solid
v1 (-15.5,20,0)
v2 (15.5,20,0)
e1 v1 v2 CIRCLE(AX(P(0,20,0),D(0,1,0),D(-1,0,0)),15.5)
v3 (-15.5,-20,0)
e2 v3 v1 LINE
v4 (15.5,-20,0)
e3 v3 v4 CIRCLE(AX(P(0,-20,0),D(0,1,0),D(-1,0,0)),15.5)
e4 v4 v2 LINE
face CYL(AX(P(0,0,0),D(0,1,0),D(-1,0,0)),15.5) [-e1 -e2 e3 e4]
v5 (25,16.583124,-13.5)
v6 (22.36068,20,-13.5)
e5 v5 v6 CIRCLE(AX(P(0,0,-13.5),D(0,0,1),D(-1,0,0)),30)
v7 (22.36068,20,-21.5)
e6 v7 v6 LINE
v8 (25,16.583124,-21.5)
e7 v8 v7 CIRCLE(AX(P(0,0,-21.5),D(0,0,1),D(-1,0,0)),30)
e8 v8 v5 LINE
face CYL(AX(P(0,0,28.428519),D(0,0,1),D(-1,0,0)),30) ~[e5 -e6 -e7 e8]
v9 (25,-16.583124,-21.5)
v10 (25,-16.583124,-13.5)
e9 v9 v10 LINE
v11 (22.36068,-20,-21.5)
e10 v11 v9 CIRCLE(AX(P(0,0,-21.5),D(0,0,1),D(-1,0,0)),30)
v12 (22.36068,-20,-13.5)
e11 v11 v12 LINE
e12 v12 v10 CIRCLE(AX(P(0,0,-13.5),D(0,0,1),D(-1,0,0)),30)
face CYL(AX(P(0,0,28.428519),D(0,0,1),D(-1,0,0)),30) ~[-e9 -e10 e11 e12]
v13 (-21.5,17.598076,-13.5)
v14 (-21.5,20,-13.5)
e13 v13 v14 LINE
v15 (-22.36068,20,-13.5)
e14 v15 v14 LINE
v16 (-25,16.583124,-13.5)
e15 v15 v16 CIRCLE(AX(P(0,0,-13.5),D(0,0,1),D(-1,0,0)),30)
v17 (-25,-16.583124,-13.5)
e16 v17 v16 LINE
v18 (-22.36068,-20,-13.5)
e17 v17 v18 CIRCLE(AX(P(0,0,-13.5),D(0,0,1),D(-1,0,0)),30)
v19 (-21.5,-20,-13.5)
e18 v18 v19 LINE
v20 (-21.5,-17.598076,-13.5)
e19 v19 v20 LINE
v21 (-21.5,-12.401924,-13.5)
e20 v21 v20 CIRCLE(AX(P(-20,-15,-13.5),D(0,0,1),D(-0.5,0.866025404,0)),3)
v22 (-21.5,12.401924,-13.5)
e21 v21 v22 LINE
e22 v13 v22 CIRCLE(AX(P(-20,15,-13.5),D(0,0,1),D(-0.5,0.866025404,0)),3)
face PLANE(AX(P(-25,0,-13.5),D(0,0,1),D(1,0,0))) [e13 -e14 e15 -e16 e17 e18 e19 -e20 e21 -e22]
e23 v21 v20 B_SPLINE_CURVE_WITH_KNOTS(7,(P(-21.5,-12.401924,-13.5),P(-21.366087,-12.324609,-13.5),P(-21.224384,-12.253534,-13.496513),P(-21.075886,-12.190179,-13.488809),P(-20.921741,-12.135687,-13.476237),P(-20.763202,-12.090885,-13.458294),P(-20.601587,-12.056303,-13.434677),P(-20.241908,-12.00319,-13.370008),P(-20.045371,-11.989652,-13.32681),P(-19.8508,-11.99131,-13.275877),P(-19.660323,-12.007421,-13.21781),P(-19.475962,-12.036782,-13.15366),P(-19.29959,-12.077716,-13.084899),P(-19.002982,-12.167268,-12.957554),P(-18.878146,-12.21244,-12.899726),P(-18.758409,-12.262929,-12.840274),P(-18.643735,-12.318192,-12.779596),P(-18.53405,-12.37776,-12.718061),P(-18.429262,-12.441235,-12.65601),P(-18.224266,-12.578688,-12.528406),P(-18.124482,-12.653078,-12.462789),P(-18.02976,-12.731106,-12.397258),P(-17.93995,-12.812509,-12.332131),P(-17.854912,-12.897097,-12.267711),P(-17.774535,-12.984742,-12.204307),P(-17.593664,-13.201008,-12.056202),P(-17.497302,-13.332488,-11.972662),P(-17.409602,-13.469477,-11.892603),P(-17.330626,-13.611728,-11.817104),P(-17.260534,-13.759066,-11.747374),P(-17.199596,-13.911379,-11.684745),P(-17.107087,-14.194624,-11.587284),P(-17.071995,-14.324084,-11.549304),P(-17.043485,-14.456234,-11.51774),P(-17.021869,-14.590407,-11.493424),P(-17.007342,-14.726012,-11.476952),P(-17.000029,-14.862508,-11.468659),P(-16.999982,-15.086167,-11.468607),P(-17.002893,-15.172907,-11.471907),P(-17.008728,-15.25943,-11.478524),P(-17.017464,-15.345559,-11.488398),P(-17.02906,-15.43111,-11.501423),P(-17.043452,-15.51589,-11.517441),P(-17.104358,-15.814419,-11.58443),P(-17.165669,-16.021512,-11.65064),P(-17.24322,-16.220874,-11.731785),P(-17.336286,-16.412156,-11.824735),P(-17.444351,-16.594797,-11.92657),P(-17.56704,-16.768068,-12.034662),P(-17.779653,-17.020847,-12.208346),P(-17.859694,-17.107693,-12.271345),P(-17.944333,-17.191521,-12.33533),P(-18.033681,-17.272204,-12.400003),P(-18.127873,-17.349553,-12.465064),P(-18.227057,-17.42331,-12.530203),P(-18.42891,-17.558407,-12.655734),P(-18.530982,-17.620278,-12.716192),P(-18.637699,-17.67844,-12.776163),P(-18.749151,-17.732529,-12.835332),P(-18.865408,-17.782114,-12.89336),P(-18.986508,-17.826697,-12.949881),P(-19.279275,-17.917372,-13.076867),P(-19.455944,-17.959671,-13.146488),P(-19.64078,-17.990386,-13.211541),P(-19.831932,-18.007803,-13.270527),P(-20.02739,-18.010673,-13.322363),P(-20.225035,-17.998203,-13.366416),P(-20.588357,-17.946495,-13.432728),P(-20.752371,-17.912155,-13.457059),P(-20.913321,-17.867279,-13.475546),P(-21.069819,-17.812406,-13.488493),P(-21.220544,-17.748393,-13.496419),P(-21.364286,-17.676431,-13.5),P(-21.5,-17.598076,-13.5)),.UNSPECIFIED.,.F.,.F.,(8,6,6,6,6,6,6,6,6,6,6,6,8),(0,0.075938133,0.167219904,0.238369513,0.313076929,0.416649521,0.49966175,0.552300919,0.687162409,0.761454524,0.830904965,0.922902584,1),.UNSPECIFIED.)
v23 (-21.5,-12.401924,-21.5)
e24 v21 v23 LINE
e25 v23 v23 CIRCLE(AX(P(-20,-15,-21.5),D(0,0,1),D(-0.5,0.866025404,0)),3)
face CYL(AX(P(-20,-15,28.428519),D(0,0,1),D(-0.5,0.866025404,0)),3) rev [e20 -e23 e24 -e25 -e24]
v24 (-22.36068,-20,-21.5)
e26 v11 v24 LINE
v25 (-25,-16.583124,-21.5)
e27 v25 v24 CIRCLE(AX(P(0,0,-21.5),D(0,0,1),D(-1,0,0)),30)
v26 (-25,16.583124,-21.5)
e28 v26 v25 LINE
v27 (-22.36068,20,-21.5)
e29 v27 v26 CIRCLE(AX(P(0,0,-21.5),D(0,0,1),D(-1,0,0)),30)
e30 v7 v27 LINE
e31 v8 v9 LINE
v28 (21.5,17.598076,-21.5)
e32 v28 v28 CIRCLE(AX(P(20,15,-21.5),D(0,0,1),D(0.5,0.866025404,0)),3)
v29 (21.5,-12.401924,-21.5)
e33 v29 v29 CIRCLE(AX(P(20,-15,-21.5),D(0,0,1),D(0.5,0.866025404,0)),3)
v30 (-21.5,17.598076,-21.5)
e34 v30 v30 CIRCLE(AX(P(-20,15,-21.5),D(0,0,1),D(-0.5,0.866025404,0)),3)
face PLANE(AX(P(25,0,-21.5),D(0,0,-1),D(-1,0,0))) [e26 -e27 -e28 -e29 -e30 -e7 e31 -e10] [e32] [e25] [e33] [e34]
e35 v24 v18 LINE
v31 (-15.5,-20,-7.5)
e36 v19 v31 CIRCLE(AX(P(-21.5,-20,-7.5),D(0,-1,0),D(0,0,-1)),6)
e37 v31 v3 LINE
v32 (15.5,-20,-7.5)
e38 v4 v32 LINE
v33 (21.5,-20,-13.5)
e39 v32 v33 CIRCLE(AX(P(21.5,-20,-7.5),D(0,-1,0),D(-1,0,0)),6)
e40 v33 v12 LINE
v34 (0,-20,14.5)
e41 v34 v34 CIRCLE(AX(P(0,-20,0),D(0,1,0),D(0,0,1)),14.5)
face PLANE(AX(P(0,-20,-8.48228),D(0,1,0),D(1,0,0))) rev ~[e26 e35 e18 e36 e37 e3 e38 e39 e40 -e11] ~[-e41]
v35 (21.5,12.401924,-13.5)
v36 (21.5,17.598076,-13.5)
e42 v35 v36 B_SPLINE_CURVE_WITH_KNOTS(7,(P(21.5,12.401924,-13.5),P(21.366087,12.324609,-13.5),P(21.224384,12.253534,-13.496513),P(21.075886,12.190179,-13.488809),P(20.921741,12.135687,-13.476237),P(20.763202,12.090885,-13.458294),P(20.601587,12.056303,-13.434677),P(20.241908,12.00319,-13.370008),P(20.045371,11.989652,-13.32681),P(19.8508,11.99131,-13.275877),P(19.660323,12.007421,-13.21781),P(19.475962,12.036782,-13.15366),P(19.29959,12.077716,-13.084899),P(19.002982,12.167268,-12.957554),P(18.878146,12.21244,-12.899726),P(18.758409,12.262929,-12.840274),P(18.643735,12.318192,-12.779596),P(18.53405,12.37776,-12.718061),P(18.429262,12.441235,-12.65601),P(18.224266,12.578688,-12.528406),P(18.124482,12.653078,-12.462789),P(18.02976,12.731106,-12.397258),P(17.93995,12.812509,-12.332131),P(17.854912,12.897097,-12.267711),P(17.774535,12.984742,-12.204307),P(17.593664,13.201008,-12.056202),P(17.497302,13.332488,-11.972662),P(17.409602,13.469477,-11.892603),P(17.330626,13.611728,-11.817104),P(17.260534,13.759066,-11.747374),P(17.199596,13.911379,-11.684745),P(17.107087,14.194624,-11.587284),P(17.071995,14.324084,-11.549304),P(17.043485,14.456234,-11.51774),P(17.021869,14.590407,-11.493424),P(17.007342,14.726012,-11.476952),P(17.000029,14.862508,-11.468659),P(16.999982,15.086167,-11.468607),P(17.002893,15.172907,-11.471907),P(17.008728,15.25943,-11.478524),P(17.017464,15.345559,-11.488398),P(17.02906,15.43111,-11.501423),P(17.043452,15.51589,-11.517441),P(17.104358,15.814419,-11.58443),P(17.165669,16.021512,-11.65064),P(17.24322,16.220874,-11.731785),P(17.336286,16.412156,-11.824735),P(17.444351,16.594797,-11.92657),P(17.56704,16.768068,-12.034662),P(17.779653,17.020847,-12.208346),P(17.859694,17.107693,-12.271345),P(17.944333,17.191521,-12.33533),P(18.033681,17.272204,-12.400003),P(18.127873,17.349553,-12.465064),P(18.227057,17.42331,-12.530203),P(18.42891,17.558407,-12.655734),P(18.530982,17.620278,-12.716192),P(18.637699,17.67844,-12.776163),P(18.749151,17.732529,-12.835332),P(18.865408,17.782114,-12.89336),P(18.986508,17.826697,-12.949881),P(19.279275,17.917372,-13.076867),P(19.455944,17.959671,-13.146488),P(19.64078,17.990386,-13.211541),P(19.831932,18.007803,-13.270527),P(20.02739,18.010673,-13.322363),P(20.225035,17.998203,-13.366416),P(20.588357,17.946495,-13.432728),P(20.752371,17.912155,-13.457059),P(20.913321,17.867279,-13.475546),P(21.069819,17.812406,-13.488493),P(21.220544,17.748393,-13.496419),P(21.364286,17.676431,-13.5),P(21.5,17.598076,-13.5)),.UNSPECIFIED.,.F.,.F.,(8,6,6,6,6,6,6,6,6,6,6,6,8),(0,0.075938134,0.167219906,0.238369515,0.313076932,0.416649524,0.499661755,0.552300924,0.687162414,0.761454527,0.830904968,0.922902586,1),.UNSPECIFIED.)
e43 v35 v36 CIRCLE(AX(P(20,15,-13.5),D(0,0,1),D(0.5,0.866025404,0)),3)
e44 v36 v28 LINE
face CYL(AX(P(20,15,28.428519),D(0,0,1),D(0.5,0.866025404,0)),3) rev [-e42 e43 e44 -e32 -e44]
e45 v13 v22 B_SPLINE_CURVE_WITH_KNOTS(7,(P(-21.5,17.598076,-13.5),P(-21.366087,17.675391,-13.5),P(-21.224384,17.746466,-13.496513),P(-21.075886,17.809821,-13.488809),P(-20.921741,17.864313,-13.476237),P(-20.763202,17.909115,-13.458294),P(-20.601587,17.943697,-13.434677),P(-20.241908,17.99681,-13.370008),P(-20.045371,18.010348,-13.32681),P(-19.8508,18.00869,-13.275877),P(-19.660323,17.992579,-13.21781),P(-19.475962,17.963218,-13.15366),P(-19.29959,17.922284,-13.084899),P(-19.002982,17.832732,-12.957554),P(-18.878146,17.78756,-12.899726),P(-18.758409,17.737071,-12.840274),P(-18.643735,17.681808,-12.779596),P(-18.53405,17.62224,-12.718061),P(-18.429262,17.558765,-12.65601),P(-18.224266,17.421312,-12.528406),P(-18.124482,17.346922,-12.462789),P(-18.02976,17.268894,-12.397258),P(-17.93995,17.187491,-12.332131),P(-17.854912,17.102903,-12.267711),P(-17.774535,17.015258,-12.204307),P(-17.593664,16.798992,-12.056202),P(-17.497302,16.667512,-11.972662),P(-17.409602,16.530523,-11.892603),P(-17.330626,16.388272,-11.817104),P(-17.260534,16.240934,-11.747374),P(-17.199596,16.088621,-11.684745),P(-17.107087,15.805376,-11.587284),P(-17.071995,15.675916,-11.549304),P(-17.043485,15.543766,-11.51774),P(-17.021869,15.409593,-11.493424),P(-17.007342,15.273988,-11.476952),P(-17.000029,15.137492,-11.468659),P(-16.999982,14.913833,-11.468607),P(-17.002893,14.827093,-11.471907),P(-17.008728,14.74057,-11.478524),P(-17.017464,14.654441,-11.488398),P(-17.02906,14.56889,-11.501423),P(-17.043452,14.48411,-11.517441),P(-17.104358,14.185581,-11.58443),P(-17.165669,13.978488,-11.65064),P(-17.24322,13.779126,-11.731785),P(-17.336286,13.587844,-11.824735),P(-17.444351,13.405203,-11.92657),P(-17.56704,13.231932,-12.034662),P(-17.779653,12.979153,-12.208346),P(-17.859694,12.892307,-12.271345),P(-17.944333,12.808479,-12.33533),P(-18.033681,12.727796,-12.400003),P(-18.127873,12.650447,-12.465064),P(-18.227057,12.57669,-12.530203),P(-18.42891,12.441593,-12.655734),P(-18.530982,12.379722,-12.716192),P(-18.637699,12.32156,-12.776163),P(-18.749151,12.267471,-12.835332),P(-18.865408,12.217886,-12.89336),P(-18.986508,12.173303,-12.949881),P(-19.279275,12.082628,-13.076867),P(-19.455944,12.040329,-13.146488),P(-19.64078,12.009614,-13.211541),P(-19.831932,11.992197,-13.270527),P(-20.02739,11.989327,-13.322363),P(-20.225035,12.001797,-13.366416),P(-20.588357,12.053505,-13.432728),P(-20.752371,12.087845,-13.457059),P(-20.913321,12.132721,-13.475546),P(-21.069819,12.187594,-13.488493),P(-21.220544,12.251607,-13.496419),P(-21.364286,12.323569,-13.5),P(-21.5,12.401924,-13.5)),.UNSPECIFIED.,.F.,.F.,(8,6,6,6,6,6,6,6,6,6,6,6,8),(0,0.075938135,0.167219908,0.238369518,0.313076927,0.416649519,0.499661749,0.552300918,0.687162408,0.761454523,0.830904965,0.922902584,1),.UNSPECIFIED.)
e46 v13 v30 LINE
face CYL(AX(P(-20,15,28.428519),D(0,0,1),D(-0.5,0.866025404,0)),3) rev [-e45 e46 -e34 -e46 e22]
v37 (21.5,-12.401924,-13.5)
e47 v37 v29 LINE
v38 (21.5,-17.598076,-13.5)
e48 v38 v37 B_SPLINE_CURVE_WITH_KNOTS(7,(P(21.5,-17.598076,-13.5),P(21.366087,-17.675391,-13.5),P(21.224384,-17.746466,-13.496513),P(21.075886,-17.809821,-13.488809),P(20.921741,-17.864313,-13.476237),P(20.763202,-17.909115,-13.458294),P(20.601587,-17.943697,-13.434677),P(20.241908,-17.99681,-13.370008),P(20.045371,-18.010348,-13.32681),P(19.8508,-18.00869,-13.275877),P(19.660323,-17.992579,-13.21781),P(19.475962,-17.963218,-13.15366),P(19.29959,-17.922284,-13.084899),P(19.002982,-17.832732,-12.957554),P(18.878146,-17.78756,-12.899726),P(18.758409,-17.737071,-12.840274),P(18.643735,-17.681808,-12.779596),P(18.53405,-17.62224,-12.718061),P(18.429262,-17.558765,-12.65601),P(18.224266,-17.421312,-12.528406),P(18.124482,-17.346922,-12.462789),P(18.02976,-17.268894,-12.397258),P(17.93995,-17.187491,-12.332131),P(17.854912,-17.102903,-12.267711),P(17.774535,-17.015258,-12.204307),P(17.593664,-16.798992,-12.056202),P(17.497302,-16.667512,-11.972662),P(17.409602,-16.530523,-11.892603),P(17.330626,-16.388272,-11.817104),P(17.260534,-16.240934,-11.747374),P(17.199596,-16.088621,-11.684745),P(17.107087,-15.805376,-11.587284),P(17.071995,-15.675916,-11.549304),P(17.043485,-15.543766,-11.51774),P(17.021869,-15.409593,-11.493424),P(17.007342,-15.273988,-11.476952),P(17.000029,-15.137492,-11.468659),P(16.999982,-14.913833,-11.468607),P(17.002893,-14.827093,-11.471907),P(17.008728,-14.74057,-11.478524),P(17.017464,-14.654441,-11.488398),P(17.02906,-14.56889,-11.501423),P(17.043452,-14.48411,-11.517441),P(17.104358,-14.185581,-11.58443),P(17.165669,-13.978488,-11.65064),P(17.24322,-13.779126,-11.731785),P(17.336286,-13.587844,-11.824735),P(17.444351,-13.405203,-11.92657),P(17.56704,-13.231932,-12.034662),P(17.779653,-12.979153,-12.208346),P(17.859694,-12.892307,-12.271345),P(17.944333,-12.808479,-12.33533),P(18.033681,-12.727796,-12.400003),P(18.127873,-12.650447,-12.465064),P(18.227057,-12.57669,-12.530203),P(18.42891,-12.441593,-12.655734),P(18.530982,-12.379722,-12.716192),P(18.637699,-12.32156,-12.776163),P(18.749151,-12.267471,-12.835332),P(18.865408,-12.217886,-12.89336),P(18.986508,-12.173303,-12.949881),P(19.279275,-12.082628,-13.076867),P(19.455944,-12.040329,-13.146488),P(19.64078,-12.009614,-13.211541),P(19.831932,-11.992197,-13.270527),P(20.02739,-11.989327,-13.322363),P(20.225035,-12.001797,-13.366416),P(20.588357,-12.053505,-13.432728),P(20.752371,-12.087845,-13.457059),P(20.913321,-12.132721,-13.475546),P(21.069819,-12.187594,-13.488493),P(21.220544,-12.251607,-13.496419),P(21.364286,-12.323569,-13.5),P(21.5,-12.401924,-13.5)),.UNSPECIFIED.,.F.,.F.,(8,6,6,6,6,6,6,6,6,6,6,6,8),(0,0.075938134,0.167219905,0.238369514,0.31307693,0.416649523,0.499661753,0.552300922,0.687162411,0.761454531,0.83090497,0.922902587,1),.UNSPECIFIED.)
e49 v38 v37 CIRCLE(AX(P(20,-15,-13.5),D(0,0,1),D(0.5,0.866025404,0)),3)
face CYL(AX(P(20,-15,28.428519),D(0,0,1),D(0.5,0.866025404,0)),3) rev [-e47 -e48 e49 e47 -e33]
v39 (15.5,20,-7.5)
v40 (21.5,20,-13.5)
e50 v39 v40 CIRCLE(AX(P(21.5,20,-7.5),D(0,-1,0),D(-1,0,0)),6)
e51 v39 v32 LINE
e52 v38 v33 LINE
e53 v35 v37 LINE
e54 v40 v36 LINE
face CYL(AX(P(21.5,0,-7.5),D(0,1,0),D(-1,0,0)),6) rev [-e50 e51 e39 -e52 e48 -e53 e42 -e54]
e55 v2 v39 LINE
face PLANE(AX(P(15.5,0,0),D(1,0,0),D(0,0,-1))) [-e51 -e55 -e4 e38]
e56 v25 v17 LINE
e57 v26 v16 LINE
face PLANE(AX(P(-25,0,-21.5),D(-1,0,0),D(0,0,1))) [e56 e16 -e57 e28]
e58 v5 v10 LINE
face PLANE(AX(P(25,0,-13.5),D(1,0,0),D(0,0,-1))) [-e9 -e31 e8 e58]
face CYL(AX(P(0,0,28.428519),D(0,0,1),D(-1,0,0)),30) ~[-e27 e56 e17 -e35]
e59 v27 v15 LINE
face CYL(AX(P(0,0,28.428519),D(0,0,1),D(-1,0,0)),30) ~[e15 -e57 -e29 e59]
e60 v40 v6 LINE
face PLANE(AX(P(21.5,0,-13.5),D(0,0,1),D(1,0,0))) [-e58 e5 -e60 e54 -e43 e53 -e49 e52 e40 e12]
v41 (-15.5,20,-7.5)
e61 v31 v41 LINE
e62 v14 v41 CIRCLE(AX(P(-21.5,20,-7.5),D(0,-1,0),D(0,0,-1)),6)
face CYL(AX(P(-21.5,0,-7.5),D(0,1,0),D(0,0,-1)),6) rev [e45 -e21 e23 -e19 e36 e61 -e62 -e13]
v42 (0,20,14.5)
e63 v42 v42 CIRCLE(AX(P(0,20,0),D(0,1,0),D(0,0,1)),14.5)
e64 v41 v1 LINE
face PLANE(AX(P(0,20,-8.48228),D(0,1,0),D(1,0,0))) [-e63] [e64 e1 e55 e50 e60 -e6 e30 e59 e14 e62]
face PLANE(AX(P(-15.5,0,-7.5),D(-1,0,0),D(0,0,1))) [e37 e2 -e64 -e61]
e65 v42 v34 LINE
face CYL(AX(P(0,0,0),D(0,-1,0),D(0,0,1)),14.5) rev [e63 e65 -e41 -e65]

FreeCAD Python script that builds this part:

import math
import FreeCAD as App
import Part
import Sketcher
from FreeCAD import Vector

doc = App.newDocument("Part")
body = doc.addObject("PartDesign::Body", "Body")

# Sketch on XZ plane
sketch1 = doc.addObject("Sketcher::SketchObject", "Sketch")
body.addObject(sketch1)
sketch1.AttachmentSupport = (doc.XZ_Plane, [""])
sketch1.MapMode = "FlatFace"
sketch1.addGeometry(Part.LineSegment(Vector(-25, -21.5, 0), Vector(-25, -13.5, 0)), False)
sketch1.addGeometry(Part.LineSegment(Vector(-25, -13.5, 0), Vector(-21.5, -13.5, 0)), False)
sketch1.addGeometry(Part.ArcOfCircle(Part.Circle(Vector(-21.5, -7.5, 0), Vector(0, 0, 1), 6), math.radians(-90), math.radians(0)), False)
sketch1.addGeometry(Part.LineSegment(Vector(-15.5, -7.5, 0), Vector(-15.5, 0, 0)), False)
sketch1.addGeometry(Part.ArcOfCircle(Part.Circle(Vector(0, 0, 0), Vector(0, 0, 1), 15.5), math.radians(0), math.radians(180)), False)
sketch1.addGeometry(Part.LineSegment(Vector(15.5, 0, 0), Vector(15.5, -7.5, 0)), False)
sketch1.addGeometry(Part.ArcOfCircle(Part.Circle(Vector(21.5, -7.5, 0), Vector(0, 0, 1), 6), math.radians(180), math.radians(270)), False)
sketch1.addGeometry(Part.LineSegment(Vector(21.5, -13.5, 0), Vector(25, -13.5, 0)), False)
sketch1.addGeometry(Part.LineSegment(Vector(25, -13.5, 0), Vector(25, -21.5, 0)), False)
sketch1.addGeometry(Part.LineSegment(Vector(25, -21.5, 0), Vector(-25, -21.5, 0)), False)
sketch1.addGeometry(Part.Circle(Vector(0, 0, 0), Vector(0, 0, 1), 14.5), False)
sketch1.addConstraint(Sketcher.Constraint("Coincident", 0, 2, 1, 1))
sketch1.addConstraint(Sketcher.Constraint("Tangent", 1, 2, 2, 1))
sketch1.addConstraint(Sketcher.Constraint("Tangent", 2, 2, 3, 1))
sketch1.addConstraint(Sketcher.Constraint("Tangent", 3, 2, 4, 2))
sketch1.addConstraint(Sketcher.Constraint("Tangent", 4, 1, 5, 1))
sketch1.addConstraint(Sketcher.Constraint("Tangent", 5, 2, 6, 1))
sketch1.addConstraint(Sketcher.Constraint("Tangent", 6, 2, 7, 1))
sketch1.addConstraint(Sketcher.Constraint("Coincident", 7, 2, 8, 1))
sketch1.addConstraint(Sketcher.Constraint("Coincident", 8, 2, 9, 1))
sketch1.addConstraint(Sketcher.Constraint("Coincident", 9, 2, 0, 1))
sketch1.addConstraint(Sketcher.Constraint("Vertical", 0))
sketch1.addConstraint(Sketcher.Constraint("Horizontal", 1))
sketch1.addConstraint(Sketcher.Constraint("Vertical", 3))
sketch1.addConstraint(Sketcher.Constraint("Vertical", 5))
sketch1.addConstraint(Sketcher.Constraint("Horizontal", 7))
sketch1.addConstraint(Sketcher.Constraint("Vertical", 8))
sketch1.addConstraint(Sketcher.Constraint("Horizontal", 9))
sketch1.addConstraint(Sketcher.Constraint("Coincident", 4, 3, -1, 1))
sketch1.addConstraint(Sketcher.Constraint("Coincident", 10, 3, -1, 1))
sketch1.addConstraint(Sketcher.Constraint("Equal", 2, 6))
sketch1.addConstraint(Sketcher.Constraint("Symmetric", 0, 2, 7, 2, -2))
sketch1.addConstraint(Sketcher.Constraint("Diameter", 10, 29.0))
sketch1.addConstraint(Sketcher.Constraint("Radius", 2, 6.0))
sketch1.addConstraint(Sketcher.Constraint("Radius", 4, 15.5))
sketch1.addConstraint(Sketcher.Constraint("DistanceX", 9, 2, 9, 1, 50.0))
sketch1.addConstraint(Sketcher.Constraint("DistanceY", 0, 1, 0, 2, 8.0))
sketch1.addConstraint(Sketcher.Constraint("DistanceY", 3, 1, 3, 2, 7.5))
pad1 = doc.addObject("PartDesign::Pad", "Pad")
body.addObject(pad1)
pad1.Profile = sketch1
pad1.Length = 40
pad1.Midplane = True

# Sketch on XY plane
sketch2 = doc.addObject("Sketcher::SketchObject", "Sketch001")
body.addObject(sketch2)
sketch2.AttachmentSupport = (doc.XY_Plane, [""])
sketch2.MapMode = "FlatFace"
sketch2.AttachmentOffset = App.Placement(Vector(0, 0, -21.5), App.Rotation())
sketch2.addGeometry(Part.Circle(Vector(20, 15, 0), Vector(0, 0, 1), 3), False)
sketch2.addGeometry(Part.Circle(Vector(-20, 15, 0), Vector(0, 0, 1), 3), False)
sketch2.addGeometry(Part.Circle(Vector(-20, -15, 0), Vector(0, 0, 1), 3), False)
sketch2.addGeometry(Part.Circle(Vector(20, -15, 0), Vector(0, 0, 1), 3), False)
sketch2.addConstraint(Sketcher.Constraint("Equal", 0, 1))
sketch2.addConstraint(Sketcher.Constraint("Equal", 1, 2))
sketch2.addConstraint(Sketcher.Constraint("Equal", 2, 3))
sketch2.addConstraint(Sketcher.Constraint("Symmetric", 0, 3, 2, 3, -1, 1))
sketch2.addConstraint(Sketcher.Constraint("Symmetric", 1, 3, 3, 3, -1, 1))
sketch2.addConstraint(Sketcher.Constraint("Symmetric", 0, 3, 1, 3, -2))
sketch2.addConstraint(Sketcher.Constraint("Diameter", 0, 6.0))
sketch2.addConstraint(Sketcher.Constraint("DistanceX", -1, 1, 0, 3, 20.0))
sketch2.addConstraint(Sketcher.Constraint("DistanceY", -1, 1, 0, 3, 15.0))
pocket1 = doc.addObject("PartDesign::Pocket", "Pocket")
body.addObject(pocket1)
pocket1.Profile = sketch2
pocket1.Type = "ThroughAll"
pocket1.Midplane = True

# Sketch on XY plane
sketch3 = doc.addObject("Sketcher::SketchObject", "Sketch002")
body.addObject(sketch3)
sketch3.AttachmentSupport = (doc.XY_Plane, [""])
sketch3.MapMode = "FlatFace"
sketch3.AttachmentOffset = App.Placement(Vector(0, 0, -21.5), App.Rotation())
sketch3.addGeometry(Part.Circle(Vector(0, 0, 0), Vector(0, 0, 1), 40), False)
sketch3.addGeometry(Part.Circle(Vector(0, 0, 0), Vector(0, 0, 1), 30), False)
sketch3.addConstraint(Sketcher.Constraint("Coincident", 0, 3, -1, 1))
sketch3.addConstraint(Sketcher.Constraint("Coincident", 1, 3, -1, 1))
sketch3.addConstraint(Sketcher.Constraint("Diameter", 0, 80.0))
sketch3.addConstraint(Sketcher.Constraint("Diameter", 1, 60.0))
pocket2 = doc.addObject("PartDesign::Pocket", "Pocket001")
body.addObject(pocket2)
pocket2.Profile = sketch3
pocket2.Type = "ThroughAll"
pocket2.Midplane = True

doc.recompute()
